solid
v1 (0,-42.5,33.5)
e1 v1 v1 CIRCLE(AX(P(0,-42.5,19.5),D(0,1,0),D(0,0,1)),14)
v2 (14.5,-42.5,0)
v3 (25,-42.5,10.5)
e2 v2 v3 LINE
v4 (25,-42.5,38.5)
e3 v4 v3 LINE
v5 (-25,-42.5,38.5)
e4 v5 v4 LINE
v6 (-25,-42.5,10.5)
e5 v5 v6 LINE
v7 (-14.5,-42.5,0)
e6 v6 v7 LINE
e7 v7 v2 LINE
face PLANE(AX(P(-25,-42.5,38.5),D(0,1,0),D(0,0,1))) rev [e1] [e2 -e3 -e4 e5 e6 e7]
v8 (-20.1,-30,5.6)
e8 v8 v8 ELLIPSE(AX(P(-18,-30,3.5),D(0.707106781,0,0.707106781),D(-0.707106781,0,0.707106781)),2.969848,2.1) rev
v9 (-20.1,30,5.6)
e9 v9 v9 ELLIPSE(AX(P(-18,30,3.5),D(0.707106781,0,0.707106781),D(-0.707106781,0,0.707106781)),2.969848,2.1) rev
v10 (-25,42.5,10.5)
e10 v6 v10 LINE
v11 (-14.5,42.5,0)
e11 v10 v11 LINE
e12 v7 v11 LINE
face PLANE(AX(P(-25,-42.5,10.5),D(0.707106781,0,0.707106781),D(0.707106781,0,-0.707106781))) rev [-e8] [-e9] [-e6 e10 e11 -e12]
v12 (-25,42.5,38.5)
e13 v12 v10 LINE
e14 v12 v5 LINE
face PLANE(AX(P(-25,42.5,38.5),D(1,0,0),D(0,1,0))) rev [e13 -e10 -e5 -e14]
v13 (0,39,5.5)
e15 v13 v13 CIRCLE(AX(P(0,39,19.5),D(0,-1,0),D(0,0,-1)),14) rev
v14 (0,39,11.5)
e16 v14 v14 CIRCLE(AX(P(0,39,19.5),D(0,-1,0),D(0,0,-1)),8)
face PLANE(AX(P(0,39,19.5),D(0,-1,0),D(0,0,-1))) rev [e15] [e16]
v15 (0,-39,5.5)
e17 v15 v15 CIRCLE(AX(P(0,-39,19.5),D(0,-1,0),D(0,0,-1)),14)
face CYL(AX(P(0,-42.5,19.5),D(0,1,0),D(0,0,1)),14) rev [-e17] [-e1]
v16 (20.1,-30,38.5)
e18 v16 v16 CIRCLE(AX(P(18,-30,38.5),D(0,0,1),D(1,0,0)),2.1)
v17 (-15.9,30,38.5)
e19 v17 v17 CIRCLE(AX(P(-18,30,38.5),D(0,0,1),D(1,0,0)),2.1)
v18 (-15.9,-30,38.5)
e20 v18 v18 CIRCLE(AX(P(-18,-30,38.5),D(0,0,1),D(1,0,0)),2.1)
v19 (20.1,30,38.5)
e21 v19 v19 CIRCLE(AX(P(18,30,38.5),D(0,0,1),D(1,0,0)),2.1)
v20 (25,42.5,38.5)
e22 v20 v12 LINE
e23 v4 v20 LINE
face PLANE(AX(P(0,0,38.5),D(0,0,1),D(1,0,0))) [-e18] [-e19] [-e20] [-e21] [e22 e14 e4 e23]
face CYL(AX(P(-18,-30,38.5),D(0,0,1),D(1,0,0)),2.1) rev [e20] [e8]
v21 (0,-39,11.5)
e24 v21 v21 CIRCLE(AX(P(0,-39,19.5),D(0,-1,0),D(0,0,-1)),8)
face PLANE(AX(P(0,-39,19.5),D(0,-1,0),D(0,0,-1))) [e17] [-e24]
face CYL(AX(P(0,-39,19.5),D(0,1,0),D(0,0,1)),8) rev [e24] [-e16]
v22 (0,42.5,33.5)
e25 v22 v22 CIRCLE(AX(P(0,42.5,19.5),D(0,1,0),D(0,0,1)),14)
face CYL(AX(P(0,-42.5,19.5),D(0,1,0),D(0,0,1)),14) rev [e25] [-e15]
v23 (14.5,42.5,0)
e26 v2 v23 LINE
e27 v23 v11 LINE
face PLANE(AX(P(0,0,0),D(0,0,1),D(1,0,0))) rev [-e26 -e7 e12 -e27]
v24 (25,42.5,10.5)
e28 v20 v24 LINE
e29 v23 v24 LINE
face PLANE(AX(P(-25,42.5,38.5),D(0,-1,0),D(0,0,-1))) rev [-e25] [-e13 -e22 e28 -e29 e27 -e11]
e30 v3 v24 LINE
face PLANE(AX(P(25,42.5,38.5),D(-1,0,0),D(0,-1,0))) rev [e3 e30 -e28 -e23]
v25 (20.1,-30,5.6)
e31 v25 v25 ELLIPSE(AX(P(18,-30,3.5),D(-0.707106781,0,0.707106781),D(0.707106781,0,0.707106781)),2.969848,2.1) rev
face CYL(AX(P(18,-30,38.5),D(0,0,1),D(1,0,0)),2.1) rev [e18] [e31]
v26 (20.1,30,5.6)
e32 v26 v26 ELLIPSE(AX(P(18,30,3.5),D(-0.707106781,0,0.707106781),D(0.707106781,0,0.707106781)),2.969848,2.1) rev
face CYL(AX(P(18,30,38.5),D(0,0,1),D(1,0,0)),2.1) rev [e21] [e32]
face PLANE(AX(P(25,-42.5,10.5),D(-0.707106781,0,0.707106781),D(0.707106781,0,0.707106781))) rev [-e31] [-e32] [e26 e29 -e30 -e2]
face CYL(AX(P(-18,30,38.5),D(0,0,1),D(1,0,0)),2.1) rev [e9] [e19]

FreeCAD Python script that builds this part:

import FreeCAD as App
import Part
import Sketcher

V = App.Vector

doc = App.newDocument("Part")
body = doc.addObject("PartDesign::Body", "Body")

# Sketch on XY plane
sketch1 = doc.addObject("Sketcher::SketchObject", "Sketch")
body.addObject(sketch1)
sketch1.AttachmentSupport = (doc.XY_Plane, [""])
sketch1.MapMode = "FlatFace"
sketch1.addGeometry(Part.LineSegment(V(-25, 42, 0), V(-25, -42, 0)), False)
sketch1.addGeometry(Part.LineSegment(V(-25, -42, 0), V(25, -42, 0)), False)
sketch1.addGeometry(Part.LineSegment(V(25, -42, 0), V(25, 42, 0)), False)
sketch1.addGeometry(Part.LineSegment(V(25, 42, 0), V(-25, 42, 0)), False)
sketch1.addConstraint(Sketcher.Constraint("Coincident", 0, 2, 1, 1))
sketch1.addConstraint(Sketcher.Constraint("Coincident", 1, 2, 2, 1))
sketch1.addConstraint(Sketcher.Constraint("Coincident", 2, 2, 3, 1))
sketch1.addConstraint(Sketcher.Constraint("Coincident", 3, 2, 0, 1))
sketch1.addConstraint(Sketcher.Constraint("Vertical", 0))
sketch1.addConstraint(Sketcher.Constraint("Horizontal", 1))
sketch1.addConstraint(Sketcher.Constraint("Vertical", 2))
sketch1.addConstraint(Sketcher.Constraint("Horizontal", 3))
sketch1.addConstraint(Sketcher.Constraint("Symmetric", 0, 2, 2, 2, -1, 1))
sketch1.addConstraint(Sketcher.Constraint("DistanceX", 1, 1, 1, 2, 50.0))
sketch1.addConstraint(Sketcher.Constraint("DistanceY", 0, 2, 0, 1, 85.0))
pad1 = doc.addObject("PartDesign::Pad", "Pad")
body.addObject(pad1)
pad1.Profile = sketch1
pad1.Length = 38.5

# Sketch on XY plane
sketch2 = doc.addObject("Sketcher::SketchObject", "Sketch001")
body.addObject(sketch2)
sketch2.AttachmentSupport = (doc.XY_Plane, [""])
sketch2.MapMode = "FlatFace"
sketch2.AttachmentOffset = App.Placement(V(0, 0, 38.5), App.Rotation())
sketch2.addGeometry(Part.Circle(V(-18, 30, 0), V(0, 0, 1), 2.1), False)
sketch2.addGeometry(Part.Circle(V(18, 30, 0), V(0, 0, 1), 2.1), False)
sketch2.addGeometry(Part.Circle(V(18, -30, 0), V(0, 0, 1), 2.1), False)
sketch2.addGeometry(Part.Circle(V(-18, -30, 0), V(0, 0, 1), 2.1), False)
sketch2.addConstraint(Sketcher.Constraint("Equal", 0, 1))
sketch2.addConstraint(Sketcher.Constraint("Equal", 1, 2))
sketch2.addConstraint(Sketcher.Constraint("Equal", 2, 3))
sketch2.addConstraint(Sketcher.Constraint("Symmetric", 0, 3, 2, 3, -1, 1))
sketch2.addConstraint(Sketcher.Constraint("Symmetric", 1, 3, 3, 3, -1, 1))
sketch2.addConstraint(Sketcher.Constraint("Symmetric", 0, 3, 1, 3, -2))
sketch2.addConstraint(Sketcher.Constraint("Diameter", 0, 4.2))
sketch2.addConstraint(Sketcher.Constraint("DistanceX", 0, 3, -1, 1, 18.0))
sketch2.addConstraint(Sketcher.Constraint("DistanceY", -1, 1, 0, 3, 30.0))
doc.recompute()
hole = doc.addObject("PartDesign::Hole", "Hole")
body.addObject(hole)
hole.Profile = sketch2
hole.ThreadType = "None"
hole.Diameter = 4.2
hole.DepthType = "ThroughAll"

# Sketch on XZ plane
sketch3 = doc.addObject("Sketcher::SketchObject", "Sketch002")
body.addObject(sketch3)
sketch3.AttachmentSupport = (doc.XZ_Plane, [""])
sketch3.MapMode = "FlatFace"
sketch3.AttachmentOffset = App.Placement(V(0, 0, -42.5), App.Rotation())
sketch3.addGeometry(Part.Circle(V(0, 20, 0), V(0, 0, 1), 14), False)
sketch3.addGeometry(Part.LineSegment(V(-25, 10, 0), V(-14, 0, 0)), False)
sketch3.addGeometry(Part.LineSegment(V(-14, 0, 0), V(-25, 0, 0)), False)
sketch3.addGeometry(Part.LineSegment(V(-25, 0, 0), V(-25, 10, 0)), False)
sketch3.addGeometry(Part.LineSegment(V(14, 0, 0), V(25, 10, 0)), False)
sketch3.addGeometry(Part.LineSegment(V(25, 10, 0), V(25, 0, 0)), False)
sketch3.addGeometry(Part.LineSegment(V(25, 0, 0), V(14, 0, 0)), False)
sketch3.addConstraint(Sketcher.Constraint("Coincident", 1, 2, 2, 1))
sketch3.addConstraint(Sketcher.Constraint("Coincident", 2, 2, 3, 1))
sketch3.addConstraint(Sketcher.Constraint("Coincident", 3, 2, 1, 1))
sketch3.addConstraint(Sketcher.Constraint("Coincident", 4, 2, 5, 1))
sketch3.addConstraint(Sketcher.Constraint("Coincident", 5, 2, 6, 1))
sketch3.addConstraint(Sketcher.Constraint("Coincident", 6, 2, 4, 1))
sketch3.addConstraint(Sketcher.Constraint("Horizontal", 2))
sketch3.addConstraint(Sketcher.Constraint("Vertical", 3))
sketch3.addConstraint(Sketcher.Constraint("Vertical", 5))
sketch3.addConstraint(Sketcher.Constraint("Horizontal", 6))
sketch3.addConstraint(Sketcher.Constraint("Symmetric", 2, 2, 5, 2, -1, 1))
sketch3.addConstraint(Sketcher.Constraint("Symmetric", 1, 2, 6, 2, -2))
sketch3.addConstraint(Sketcher.Constraint("PointOnObject", 0, 3, -2))
sketch3.addConstraint(Sketcher.Constraint("Perpendicular", 1, 4))
sketch3.addConstraint(Sketcher.Constraint("Horizontal", 3, 2, 4, 2))
sketch3.addConstraint(Sketcher.Constraint("Diameter", 0, 28.0))
sketch3.addConstraint(Sketcher.Constraint("DistanceX", 2, 2, 2, 1, 10.5))
sketch3.addConstraint(Sketcher.Constraint("DistanceX", 2, 2, -1, 1, 25.0))
sketch3.addConstraint(Sketcher.Constraint("DistanceY", 3, 2, 0, 3, 9.0))
pocket1 = doc.addObject("PartDesign::Pocket", "Pocket")
body.addObject(pocket1)
pocket1.Profile = sketch3
pocket1.Type = "ThroughAll"
pocket1.Reversed = True

# Sketch on XZ plane
sketch4 = doc.addObject("Sketcher::SketchObject", "Sketch003")
body.addObject(sketch4)
sketch4.AttachmentSupport = (doc.XZ_Plane, [""])
sketch4.MapMode = "FlatFace"
sketch4.addGeometry(Part.Circle(V(0, 20, 0), V(0, 0, 1), 14), False)
sketch4.addGeometry(Part.Circle(V(0, 20, 0), V(0, 0, 1), 8), False)
sketch4.addConstraint(Sketcher.Constraint("Coincident", 1, 3, 0, 3))
sketch4.addConstraint(Sketcher.Constraint("PointOnObject", 0, 3, -2))
sketch4.addConstraint(Sketcher.Constraint("Diameter", 0, 28.0))
sketch4.addConstraint(Sketcher.Constraint("Diameter", 1, 16.0))
sketch4.addConstraint(Sketcher.Constraint("DistanceY", -1, 1, 0, 3, 19.5))
pad2 = doc.addObject("PartDesign::Pad", "Pad001")
body.addObject(pad2)
pad2.Profile = sketch4
pad2.Length = 78
pad2.Midplane = True

doc.recompute()
